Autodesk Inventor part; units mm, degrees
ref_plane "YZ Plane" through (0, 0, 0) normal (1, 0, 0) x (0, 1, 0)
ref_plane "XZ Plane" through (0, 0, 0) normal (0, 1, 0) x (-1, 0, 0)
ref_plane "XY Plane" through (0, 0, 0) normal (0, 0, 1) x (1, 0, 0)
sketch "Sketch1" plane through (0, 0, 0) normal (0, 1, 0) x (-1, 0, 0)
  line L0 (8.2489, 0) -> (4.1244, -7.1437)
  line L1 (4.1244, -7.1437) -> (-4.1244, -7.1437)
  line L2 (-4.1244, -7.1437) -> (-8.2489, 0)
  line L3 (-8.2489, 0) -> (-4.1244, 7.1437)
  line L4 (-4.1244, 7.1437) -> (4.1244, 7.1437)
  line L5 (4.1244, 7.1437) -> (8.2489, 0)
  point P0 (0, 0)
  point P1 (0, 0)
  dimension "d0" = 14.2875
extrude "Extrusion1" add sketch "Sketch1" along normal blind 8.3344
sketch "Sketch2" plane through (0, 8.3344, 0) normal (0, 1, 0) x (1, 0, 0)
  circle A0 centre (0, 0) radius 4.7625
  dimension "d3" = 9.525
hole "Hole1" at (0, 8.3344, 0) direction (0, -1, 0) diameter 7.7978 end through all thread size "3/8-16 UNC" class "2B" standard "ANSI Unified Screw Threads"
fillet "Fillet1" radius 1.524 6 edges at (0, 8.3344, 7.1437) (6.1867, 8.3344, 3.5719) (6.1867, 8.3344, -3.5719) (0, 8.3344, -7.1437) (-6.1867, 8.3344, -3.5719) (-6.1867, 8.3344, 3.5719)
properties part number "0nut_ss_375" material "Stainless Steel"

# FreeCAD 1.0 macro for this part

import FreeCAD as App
import Part
import Sketcher
Q = App.Units.Quantity


def edges_at(feature, points):
    """Names of the edges that pass closest to the given points."""
    edges = feature.Shape.Edges
    near = lambda p: min(range(len(edges)), key=lambda i: edges[i].distToShape(Part.Vertex(*p))[0])
    return sorted({f"Edge{near(p) + 1}" for p in points})

doc = App.newDocument("Part")
body = doc.addObject("PartDesign::Body", "Body")

# Sketch on XZ plane
sketch1 = doc.addObject("Sketcher::SketchObject", "Sketch")
body.addObject(sketch1)
sketch1.AttachmentSupport = (doc.XZ_Plane, [""])
sketch1.MapMode = "FlatFace"
sketch1.addGeometry([
    Part.LineSegment(App.Vector(-4.1244, -7.1437, 0), App.Vector(-8.2489, 0, 0)),  # 0
    Part.LineSegment(App.Vector(-8.2489, 0, 0), App.Vector(-4.1244, 7.1437, 0)),  # 1
    Part.LineSegment(App.Vector(-4.1244, 7.1437, 0), App.Vector(4.1244, 7.1437, 0)),  # 2
    Part.LineSegment(App.Vector(4.1244, 7.1437, 0), App.Vector(8.2489, 0, 0)),  # 3
    Part.LineSegment(App.Vector(8.2489, 0, 0), App.Vector(4.1244, -7.1437, 0)),  # 4
    Part.LineSegment(App.Vector(4.1244, -7.1437, 0), App.Vector(-4.1244, -7.1437, 0)),  # 5
], False)
sketch1.addConstraint([
    Sketcher.Constraint("Coincident", 0, 2, 1, 1),
    Sketcher.Constraint("Coincident", 1, 2, 2, 1),
    Sketcher.Constraint("Coincident", 2, 2, 3, 1),
    Sketcher.Constraint("Coincident", 3, 2, 4, 1),
    Sketcher.Constraint("Coincident", 4, 2, 5, 1),
    Sketcher.Constraint("Coincident", 5, 2, 0, 1),
    Sketcher.Constraint("Horizontal", 2),
    Sketcher.Constraint("Horizontal", 5),
    Sketcher.Constraint("Symmetric", 0, 2, 3, 2, -1, 1),
    Sketcher.Constraint("Symmetric", 1, 2, 4, 2, -1, 1),
    Sketcher.Constraint("PointOnObject", 0, 2, -1),
    Sketcher.Constraint("Parallel", 0, 3),
    Sketcher.Constraint("Vertical", 2, 2, 4, 2),
    Sketcher.Constraint("Angle", 0, Q("120.0005 deg")),
    Sketcher.Constraint("DistanceY", 4, 2, 2, 2, Q("0.5625 in")),
    Sketcher.Constraint("DistanceX", 2, 1, 2, 2, Q("8.2488 mm")),
])
pad1 = doc.addObject("PartDesign::Pad", "Pad")
body.addObject(pad1)
pad1.Profile = sketch1
pad1.Length = Q("0.328126 in")
pad1.Reversed = True

# Sketch on XZ plane
sketch2 = doc.addObject("Sketcher::SketchObject", "Sketch001")
body.addObject(sketch2)
sketch2.AttachmentSupport = (doc.XZ_Plane, [""])
sketch2.MapMode = "FlatFace"
sketch2.AttachmentOffset = App.Placement(App.Vector(0, 0, -0.328126 * 25.4), App.Rotation())
sketch2.addGeometry(Part.Circle(App.Vector(0, 0, 0), App.Vector(0, 0, 1), 3.8989), False)
sketch2.addConstraint([
    Sketcher.Constraint("Coincident", 0, 3, -1, 1),
    Sketcher.Constraint("Diameter", 0, Q("0.307 in")),
])
doc.recompute()
hole = doc.addObject("PartDesign::Hole", "Hole")
body.addObject(hole)
hole.Profile = sketch2
hole.ThreadType = "None"
hole.Diameter = Q("0.307 in")
hole.DepthType = "ThroughAll"
hole.Reversed = True
doc.recompute()

fillet = doc.addObject("PartDesign::Fillet", "Fillet")
body.addObject(fillet)
fillet.Base = (hole, edges_at(hole, [
    (0, 8.334, 7.144),
    (6.187, 8.334, 3.572),
    (6.187, 8.334, -3.572),
    (0, 8.334, -7.144),
    (-6.187, 8.334, -3.572),
    (-6.187, 8.334, 3.572),
]))
fillet.Radius = Q("0.06 in")

doc.recompute()
